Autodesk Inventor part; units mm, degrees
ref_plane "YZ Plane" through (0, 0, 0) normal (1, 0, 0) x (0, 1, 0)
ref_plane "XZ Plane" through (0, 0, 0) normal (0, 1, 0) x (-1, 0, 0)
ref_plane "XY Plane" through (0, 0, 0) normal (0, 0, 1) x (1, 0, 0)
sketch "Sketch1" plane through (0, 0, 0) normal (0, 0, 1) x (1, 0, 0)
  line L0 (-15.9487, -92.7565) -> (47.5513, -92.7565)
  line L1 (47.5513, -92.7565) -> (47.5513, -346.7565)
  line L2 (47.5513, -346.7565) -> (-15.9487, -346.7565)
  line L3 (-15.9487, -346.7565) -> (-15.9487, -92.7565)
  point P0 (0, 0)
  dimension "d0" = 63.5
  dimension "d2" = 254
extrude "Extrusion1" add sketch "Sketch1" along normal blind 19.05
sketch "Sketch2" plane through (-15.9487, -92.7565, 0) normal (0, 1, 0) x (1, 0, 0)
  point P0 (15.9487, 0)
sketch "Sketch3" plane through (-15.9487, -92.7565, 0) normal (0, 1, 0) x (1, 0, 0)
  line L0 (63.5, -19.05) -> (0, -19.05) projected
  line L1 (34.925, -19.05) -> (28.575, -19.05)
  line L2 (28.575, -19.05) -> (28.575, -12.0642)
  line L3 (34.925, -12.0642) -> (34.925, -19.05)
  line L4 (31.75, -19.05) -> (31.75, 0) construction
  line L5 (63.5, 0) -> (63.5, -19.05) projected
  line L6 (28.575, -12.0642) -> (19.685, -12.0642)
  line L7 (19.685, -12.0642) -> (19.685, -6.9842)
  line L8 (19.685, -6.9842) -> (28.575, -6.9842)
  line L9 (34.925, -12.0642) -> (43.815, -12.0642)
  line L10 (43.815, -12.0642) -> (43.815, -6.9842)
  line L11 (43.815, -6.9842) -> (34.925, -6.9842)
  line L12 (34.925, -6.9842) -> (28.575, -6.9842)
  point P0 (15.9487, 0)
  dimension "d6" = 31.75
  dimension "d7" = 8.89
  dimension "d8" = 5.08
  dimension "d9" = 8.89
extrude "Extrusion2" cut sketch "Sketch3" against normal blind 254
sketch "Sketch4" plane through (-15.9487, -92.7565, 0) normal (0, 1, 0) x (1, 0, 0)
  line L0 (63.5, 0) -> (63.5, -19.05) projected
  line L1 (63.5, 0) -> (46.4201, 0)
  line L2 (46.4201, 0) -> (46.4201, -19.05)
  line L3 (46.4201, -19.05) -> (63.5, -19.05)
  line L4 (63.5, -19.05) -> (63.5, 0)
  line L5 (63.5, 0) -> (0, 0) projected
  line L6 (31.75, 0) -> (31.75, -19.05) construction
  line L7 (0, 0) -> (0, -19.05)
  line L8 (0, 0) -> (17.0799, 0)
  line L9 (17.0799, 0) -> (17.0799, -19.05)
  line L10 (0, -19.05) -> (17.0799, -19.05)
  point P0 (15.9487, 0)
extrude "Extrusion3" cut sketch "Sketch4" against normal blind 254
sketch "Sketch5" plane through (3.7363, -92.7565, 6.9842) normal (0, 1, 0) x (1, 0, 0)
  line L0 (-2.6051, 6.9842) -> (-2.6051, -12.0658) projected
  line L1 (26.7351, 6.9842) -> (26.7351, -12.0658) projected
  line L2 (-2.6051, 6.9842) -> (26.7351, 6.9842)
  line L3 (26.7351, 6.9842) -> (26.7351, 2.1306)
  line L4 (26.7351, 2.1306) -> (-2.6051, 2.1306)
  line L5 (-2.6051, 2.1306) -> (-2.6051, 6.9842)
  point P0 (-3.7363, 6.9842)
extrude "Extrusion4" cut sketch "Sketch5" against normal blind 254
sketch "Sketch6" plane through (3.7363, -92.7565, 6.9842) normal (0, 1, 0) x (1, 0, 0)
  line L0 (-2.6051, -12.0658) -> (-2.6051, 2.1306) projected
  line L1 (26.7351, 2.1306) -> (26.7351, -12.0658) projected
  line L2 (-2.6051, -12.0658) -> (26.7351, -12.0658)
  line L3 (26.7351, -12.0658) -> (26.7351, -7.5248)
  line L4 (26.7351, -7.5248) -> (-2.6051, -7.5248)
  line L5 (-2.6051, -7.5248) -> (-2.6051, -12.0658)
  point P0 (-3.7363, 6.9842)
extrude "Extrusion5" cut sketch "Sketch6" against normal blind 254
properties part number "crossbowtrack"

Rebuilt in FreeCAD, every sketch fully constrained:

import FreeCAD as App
import Part
import Sketcher
from FreeCAD import Vector
Q = App.Units.Quantity

doc = App.newDocument("Part")
body = doc.addObject("PartDesign::Body", "Body")

sketch1 = body.newObject("Sketcher::SketchObject", "Sketch")
sketch1.AttachmentSupport = (doc.getObject("XY_Plane"), [""])
sketch1.MapMode = "FlatFace"
sketch1.addGeometry([
    Part.LineSegment(Vector(47.5513, -92.7565, 0), Vector(-15.9487, -92.7565, 0)),
    Part.LineSegment(Vector(-15.9487, -92.7565, 0), Vector(-15.9487, -346.7565, 0)),
    Part.LineSegment(Vector(-15.9487, -346.7565, 0), Vector(47.5513, -346.7565, 0)),
    Part.LineSegment(Vector(47.5513, -346.7565, 0), Vector(47.5513, -92.7565, 0)),
], False)
sketch1.addConstraint([
    Sketcher.Constraint("Coincident", 0, 2, 1, 1),
    Sketcher.Constraint("Coincident", 1, 2, 2, 1),
    Sketcher.Constraint("Coincident", 2, 2, 3, 1),
    Sketcher.Constraint("Coincident", 3, 2, 0, 1),
    Sketcher.Constraint("Horizontal", 0),
    Sketcher.Constraint("Vertical", 1),
    Sketcher.Constraint("Horizontal", 2),
    Sketcher.Constraint("Vertical", 3),
    Sketcher.Constraint("DistanceY", 1, 2, 1, 1, Q("10 in")),
    Sketcher.Constraint("DistanceX", 0, 2, 0, 1, Q("2.5 in")),
    Sketcher.Constraint("DistanceX", 0, 2, -1, 1, Q("0.6279 in")),
    Sketcher.Constraint("DistanceY", 0, 2, -1, 1, 92.7565),
])
pad1 = body.newObject("PartDesign::Pad", "Pad")
pad1.Profile = sketch1
pad1.Length = Q("0.75 in")

sketch2 = body.newObject("Sketcher::SketchObject", "Sketch001")
sketch2.AttachmentSupport = (doc.getObject("XZ_Plane"), [""])
sketch2.MapMode = "FlatFace"
sketch2.AttachmentOffset = App.Placement(Vector(0, 0, 92.7565), App.Rotation())
sketch2.addGeometry([
    Part.LineSegment(Vector(12.6263, 19.05, 0), Vector(18.9763, 19.05, 0)),
    Part.LineSegment(Vector(18.9763, 19.05, 0), Vector(18.9763, 12.0642, 0)),
    Part.LineSegment(Vector(18.9763, 12.0642, 0), Vector(27.8663, 12.0642, 0)),
    Part.LineSegment(Vector(27.8663, 12.0642, 0), Vector(27.8663, 6.9842, 0)),
    Part.LineSegment(Vector(27.8663, 6.9842, 0), Vector(3.7363, 6.9842, 0)),
    Part.LineSegment(Vector(3.7363, 6.9842, 0), Vector(3.7363, 12.0642, 0)),
    Part.LineSegment(Vector(3.7363, 12.0642, 0), Vector(12.6263, 12.0642, 0)),
    Part.LineSegment(Vector(12.6263, 12.0642, 0), Vector(12.6263, 19.05, 0)),
], False)
sketch2.addConstraint([
    Sketcher.Constraint("Coincident", 0, 2, 1, 1),
    Sketcher.Constraint("Coincident", 1, 2, 2, 1),
    Sketcher.Constraint("Coincident", 2, 2, 3, 1),
    Sketcher.Constraint("Coincident", 3, 2, 4, 1),
    Sketcher.Constraint("Coincident", 4, 2, 5, 1),
    Sketcher.Constraint("Coincident", 5, 2, 6, 1),
    Sketcher.Constraint("Coincident", 6, 2, 7, 1),
    Sketcher.Constraint("Coincident", 7, 2, 0, 1),
    Sketcher.Constraint("Horizontal", 0),
    Sketcher.Constraint("Vertical", 1),
    Sketcher.Constraint("Horizontal", 2),
    Sketcher.Constraint("Vertical", 3),
    Sketcher.Constraint("Horizontal", 4),
    Sketcher.Constraint("Vertical", 5),
    Sketcher.Constraint("Horizontal", 6),
    Sketcher.Constraint("Vertical", 7),
    Sketcher.Constraint("Horizontal", 2, 2, 5, 2),
    Sketcher.Constraint("Equal", 2, 6),
    Sketcher.Constraint("DistanceY", 3, 2, 3, 1, Q("0.2 in")),
    Sketcher.Constraint("DistanceX", 2, 1, 2, 2, Q("0.35 in")),
    Sketcher.Constraint("DistanceX", 0, 1, 0, 2, Q("0.25 in")),
    Sketcher.Constraint("DistanceY", -1, 1, 0, 2, Q("0.75 in")),
    Sketcher.Constraint("DistanceY", 1, 2, 1, 1, 6.9858),
    Sketcher.Constraint("DistanceX", -1, 1, 0, 2, Q("0.7471 in")),
])
pocket1 = body.newObject("PartDesign::Pocket", "Pocket")
pocket1.Profile = sketch2
pocket1.Length = Q("10 in")
pocket1.Reversed = True

sketch3 = body.newObject("Sketcher::SketchObject", "Sketch002")
sketch3.AttachmentSupport = (doc.getObject("XZ_Plane"), [""])
sketch3.MapMode = "FlatFace"
sketch3.AttachmentOffset = App.Placement(Vector(0, 0, 92.7565), App.Rotation())
sketch3.addGeometry([
    Part.LineSegment(Vector(1.1312, 19.05, 0), Vector(1.1312, 0, 0)),
    Part.LineSegment(Vector(1.1312, 0, 0), Vector(-15.9487, 0, 0)),
    Part.LineSegment(Vector(-15.9487, 0, 0), Vector(-15.9487, 19.05, 0)),
    Part.LineSegment(Vector(-15.9487, 19.05, 0), Vector(1.1312, 19.05, 0)),
    Part.LineSegment(Vector(47.5513, 19.05, 0), Vector(47.5513, 0, 0)),
    Part.LineSegment(Vector(47.5513, 0, 0), Vector(30.4714, 0, 0)),
    Part.LineSegment(Vector(30.4714, 0, 0), Vector(30.4714, 19.05, 0)),
    Part.LineSegment(Vector(30.4714, 19.05, 0), Vector(47.5513, 19.05, 0)),
], False)
sketch3.addConstraint([
    Sketcher.Constraint("Coincident", 0, 2, 1, 1),
    Sketcher.Constraint("Coincident", 1, 2, 2, 1),
    Sketcher.Constraint("Coincident", 2, 2, 3, 1),
    Sketcher.Constraint("Coincident", 3, 2, 0, 1),
    Sketcher.Constraint("Coincident", 4, 2, 5, 1),
    Sketcher.Constraint("Coincident", 5, 2, 6, 1),
    Sketcher.Constraint("Coincident", 6, 2, 7, 1),
    Sketcher.Constraint("Coincident", 7, 2, 4, 1),
    Sketcher.Constraint("Vertical", 0),
    Sketcher.Constraint("Horizontal", 1),
    Sketcher.Constraint("Vertical", 2),
    Sketcher.Constraint("Horizontal", 3),
    Sketcher.Constraint("Vertical", 4),
    Sketcher.Constraint("Horizontal", 5),
    Sketcher.Constraint("Vertical", 6),
    Sketcher.Constraint("Horizontal", 7),
    Sketcher.Constraint("PointOnObject", 0, 2, -1),
    Sketcher.Constraint("PointOnObject", 4, 2, -1),
    Sketcher.Constraint("Horizontal", 3, 2, 6, 2),
    Sketcher.Constraint("Equal", 3, 5),
    Sketcher.Constraint("DistanceY", 0, 2, 0, 1, Q("0.75 in")),
    Sketcher.Constraint("DistanceX", 1, 2, 4, 2, Q("2.5 in")),
    Sketcher.Constraint("DistanceX", 1, 2, 1, 1, 17.08),
    Sketcher.Constraint("DistanceX", 1, 2, -1, 1, Q("0.6279 in")),
])
pocket2 = body.newObject("PartDesign::Pocket", "Pocket001")
pocket2.Profile = sketch3
pocket2.Length = Q("10 in")
pocket2.Reversed = True

sketch4 = body.newObject("Sketcher::SketchObject", "Sketch003")
sketch4.AttachmentSupport = (doc.getObject("XZ_Plane"), [""])
sketch4.MapMode = "FlatFace"
sketch4.AttachmentOffset = App.Placement(Vector(0, 0, 92.7565), App.Rotation())
sketch4.addGeometry([
    Part.LineSegment(Vector(30.4714, 0, 0), Vector(1.1312, 0, 0)),
    Part.LineSegment(Vector(1.1312, 0, 0), Vector(1.1312, 4.8536, 0)),
    Part.LineSegment(Vector(1.1312, 4.8536, 0), Vector(30.4714, 4.8536, 0)),
    Part.LineSegment(Vector(30.4714, 4.8536, 0), Vector(30.4714, 0, 0)),
], False)
sketch4.addConstraint([
    Sketcher.Constraint("Coincident", 0, 2, 1, 1),
    Sketcher.Constraint("Coincident", 1, 2, 2, 1),
    Sketcher.Constraint("Coincident", 2, 2, 3, 1),
    Sketcher.Constraint("Coincident", 3, 2, 0, 1),
    Sketcher.Constraint("Horizontal", 0),
    Sketcher.Constraint("Vertical", 1),
    Sketcher.Constraint("Horizontal", 2),
    Sketcher.Constraint("Vertical", 3),
    Sketcher.Constraint("PointOnObject", 0, 2, -1),
    Sketcher.Constraint("DistanceX", 0, 2, 0, 1, 29.3402),
    Sketcher.Constraint("DistanceY", 1, 1, 1, 2, 4.8536),
    Sketcher.Constraint("DistanceX", -1, 1, 0, 2, 1.1312),
])
pocket3 = body.newObject("PartDesign::Pocket", "Pocket002")
pocket3.Profile = sketch4
pocket3.Length = Q("10 in")
pocket3.Reversed = True

sketch5 = body.newObject("Sketcher::SketchObject", "Sketch004")
sketch5.AttachmentSupport = (doc.getObject("XZ_Plane"), [""])
sketch5.MapMode = "FlatFace"
sketch5.AttachmentOffset = App.Placement(Vector(0, 0, 92.7565), App.Rotation())
sketch5.addGeometry([
    Part.LineSegment(Vector(1.1312, 14.509, 0), Vector(1.1312, 19.05, 0)),
    Part.LineSegment(Vector(1.1312, 19.05, 0), Vector(30.4714, 19.05, 0)),
    Part.LineSegment(Vector(30.4714, 19.05, 0), Vector(30.4714, 14.509, 0)),
    Part.LineSegment(Vector(30.4714, 14.509, 0), Vector(1.1312, 14.509, 0)),
], False)
sketch5.addConstraint([
    Sketcher.Constraint("Coincident", 0, 2, 1, 1),
    Sketcher.Constraint("Coincident", 1, 2, 2, 1),
    Sketcher.Constraint("Coincident", 2, 2, 3, 1),
    Sketcher.Constraint("Coincident", 3, 2, 0, 1),
    Sketcher.Constraint("Vertical", 0),
    Sketcher.Constraint("Horizontal", 1),
    Sketcher.Constraint("Vertical", 2),
    Sketcher.Constraint("Horizontal", 3),
    Sketcher.Constraint("DistanceY", -1, 1, 0, 2, Q("0.75 in")),
    Sketcher.Constraint("DistanceX", 1, 1, 1, 2, 29.3402),
    Sketcher.Constraint("DistanceY", 0, 1, 0, 2, 4.541),
    Sketcher.Constraint("DistanceX", -1, 1, 0, 2, 1.1312),
])
pocket4 = body.newObject("PartDesign::Pocket", "Pocket003")
pocket4.Profile = sketch5
pocket4.Length = Q("10 in")
pocket4.Reversed = True

doc.recompute()
